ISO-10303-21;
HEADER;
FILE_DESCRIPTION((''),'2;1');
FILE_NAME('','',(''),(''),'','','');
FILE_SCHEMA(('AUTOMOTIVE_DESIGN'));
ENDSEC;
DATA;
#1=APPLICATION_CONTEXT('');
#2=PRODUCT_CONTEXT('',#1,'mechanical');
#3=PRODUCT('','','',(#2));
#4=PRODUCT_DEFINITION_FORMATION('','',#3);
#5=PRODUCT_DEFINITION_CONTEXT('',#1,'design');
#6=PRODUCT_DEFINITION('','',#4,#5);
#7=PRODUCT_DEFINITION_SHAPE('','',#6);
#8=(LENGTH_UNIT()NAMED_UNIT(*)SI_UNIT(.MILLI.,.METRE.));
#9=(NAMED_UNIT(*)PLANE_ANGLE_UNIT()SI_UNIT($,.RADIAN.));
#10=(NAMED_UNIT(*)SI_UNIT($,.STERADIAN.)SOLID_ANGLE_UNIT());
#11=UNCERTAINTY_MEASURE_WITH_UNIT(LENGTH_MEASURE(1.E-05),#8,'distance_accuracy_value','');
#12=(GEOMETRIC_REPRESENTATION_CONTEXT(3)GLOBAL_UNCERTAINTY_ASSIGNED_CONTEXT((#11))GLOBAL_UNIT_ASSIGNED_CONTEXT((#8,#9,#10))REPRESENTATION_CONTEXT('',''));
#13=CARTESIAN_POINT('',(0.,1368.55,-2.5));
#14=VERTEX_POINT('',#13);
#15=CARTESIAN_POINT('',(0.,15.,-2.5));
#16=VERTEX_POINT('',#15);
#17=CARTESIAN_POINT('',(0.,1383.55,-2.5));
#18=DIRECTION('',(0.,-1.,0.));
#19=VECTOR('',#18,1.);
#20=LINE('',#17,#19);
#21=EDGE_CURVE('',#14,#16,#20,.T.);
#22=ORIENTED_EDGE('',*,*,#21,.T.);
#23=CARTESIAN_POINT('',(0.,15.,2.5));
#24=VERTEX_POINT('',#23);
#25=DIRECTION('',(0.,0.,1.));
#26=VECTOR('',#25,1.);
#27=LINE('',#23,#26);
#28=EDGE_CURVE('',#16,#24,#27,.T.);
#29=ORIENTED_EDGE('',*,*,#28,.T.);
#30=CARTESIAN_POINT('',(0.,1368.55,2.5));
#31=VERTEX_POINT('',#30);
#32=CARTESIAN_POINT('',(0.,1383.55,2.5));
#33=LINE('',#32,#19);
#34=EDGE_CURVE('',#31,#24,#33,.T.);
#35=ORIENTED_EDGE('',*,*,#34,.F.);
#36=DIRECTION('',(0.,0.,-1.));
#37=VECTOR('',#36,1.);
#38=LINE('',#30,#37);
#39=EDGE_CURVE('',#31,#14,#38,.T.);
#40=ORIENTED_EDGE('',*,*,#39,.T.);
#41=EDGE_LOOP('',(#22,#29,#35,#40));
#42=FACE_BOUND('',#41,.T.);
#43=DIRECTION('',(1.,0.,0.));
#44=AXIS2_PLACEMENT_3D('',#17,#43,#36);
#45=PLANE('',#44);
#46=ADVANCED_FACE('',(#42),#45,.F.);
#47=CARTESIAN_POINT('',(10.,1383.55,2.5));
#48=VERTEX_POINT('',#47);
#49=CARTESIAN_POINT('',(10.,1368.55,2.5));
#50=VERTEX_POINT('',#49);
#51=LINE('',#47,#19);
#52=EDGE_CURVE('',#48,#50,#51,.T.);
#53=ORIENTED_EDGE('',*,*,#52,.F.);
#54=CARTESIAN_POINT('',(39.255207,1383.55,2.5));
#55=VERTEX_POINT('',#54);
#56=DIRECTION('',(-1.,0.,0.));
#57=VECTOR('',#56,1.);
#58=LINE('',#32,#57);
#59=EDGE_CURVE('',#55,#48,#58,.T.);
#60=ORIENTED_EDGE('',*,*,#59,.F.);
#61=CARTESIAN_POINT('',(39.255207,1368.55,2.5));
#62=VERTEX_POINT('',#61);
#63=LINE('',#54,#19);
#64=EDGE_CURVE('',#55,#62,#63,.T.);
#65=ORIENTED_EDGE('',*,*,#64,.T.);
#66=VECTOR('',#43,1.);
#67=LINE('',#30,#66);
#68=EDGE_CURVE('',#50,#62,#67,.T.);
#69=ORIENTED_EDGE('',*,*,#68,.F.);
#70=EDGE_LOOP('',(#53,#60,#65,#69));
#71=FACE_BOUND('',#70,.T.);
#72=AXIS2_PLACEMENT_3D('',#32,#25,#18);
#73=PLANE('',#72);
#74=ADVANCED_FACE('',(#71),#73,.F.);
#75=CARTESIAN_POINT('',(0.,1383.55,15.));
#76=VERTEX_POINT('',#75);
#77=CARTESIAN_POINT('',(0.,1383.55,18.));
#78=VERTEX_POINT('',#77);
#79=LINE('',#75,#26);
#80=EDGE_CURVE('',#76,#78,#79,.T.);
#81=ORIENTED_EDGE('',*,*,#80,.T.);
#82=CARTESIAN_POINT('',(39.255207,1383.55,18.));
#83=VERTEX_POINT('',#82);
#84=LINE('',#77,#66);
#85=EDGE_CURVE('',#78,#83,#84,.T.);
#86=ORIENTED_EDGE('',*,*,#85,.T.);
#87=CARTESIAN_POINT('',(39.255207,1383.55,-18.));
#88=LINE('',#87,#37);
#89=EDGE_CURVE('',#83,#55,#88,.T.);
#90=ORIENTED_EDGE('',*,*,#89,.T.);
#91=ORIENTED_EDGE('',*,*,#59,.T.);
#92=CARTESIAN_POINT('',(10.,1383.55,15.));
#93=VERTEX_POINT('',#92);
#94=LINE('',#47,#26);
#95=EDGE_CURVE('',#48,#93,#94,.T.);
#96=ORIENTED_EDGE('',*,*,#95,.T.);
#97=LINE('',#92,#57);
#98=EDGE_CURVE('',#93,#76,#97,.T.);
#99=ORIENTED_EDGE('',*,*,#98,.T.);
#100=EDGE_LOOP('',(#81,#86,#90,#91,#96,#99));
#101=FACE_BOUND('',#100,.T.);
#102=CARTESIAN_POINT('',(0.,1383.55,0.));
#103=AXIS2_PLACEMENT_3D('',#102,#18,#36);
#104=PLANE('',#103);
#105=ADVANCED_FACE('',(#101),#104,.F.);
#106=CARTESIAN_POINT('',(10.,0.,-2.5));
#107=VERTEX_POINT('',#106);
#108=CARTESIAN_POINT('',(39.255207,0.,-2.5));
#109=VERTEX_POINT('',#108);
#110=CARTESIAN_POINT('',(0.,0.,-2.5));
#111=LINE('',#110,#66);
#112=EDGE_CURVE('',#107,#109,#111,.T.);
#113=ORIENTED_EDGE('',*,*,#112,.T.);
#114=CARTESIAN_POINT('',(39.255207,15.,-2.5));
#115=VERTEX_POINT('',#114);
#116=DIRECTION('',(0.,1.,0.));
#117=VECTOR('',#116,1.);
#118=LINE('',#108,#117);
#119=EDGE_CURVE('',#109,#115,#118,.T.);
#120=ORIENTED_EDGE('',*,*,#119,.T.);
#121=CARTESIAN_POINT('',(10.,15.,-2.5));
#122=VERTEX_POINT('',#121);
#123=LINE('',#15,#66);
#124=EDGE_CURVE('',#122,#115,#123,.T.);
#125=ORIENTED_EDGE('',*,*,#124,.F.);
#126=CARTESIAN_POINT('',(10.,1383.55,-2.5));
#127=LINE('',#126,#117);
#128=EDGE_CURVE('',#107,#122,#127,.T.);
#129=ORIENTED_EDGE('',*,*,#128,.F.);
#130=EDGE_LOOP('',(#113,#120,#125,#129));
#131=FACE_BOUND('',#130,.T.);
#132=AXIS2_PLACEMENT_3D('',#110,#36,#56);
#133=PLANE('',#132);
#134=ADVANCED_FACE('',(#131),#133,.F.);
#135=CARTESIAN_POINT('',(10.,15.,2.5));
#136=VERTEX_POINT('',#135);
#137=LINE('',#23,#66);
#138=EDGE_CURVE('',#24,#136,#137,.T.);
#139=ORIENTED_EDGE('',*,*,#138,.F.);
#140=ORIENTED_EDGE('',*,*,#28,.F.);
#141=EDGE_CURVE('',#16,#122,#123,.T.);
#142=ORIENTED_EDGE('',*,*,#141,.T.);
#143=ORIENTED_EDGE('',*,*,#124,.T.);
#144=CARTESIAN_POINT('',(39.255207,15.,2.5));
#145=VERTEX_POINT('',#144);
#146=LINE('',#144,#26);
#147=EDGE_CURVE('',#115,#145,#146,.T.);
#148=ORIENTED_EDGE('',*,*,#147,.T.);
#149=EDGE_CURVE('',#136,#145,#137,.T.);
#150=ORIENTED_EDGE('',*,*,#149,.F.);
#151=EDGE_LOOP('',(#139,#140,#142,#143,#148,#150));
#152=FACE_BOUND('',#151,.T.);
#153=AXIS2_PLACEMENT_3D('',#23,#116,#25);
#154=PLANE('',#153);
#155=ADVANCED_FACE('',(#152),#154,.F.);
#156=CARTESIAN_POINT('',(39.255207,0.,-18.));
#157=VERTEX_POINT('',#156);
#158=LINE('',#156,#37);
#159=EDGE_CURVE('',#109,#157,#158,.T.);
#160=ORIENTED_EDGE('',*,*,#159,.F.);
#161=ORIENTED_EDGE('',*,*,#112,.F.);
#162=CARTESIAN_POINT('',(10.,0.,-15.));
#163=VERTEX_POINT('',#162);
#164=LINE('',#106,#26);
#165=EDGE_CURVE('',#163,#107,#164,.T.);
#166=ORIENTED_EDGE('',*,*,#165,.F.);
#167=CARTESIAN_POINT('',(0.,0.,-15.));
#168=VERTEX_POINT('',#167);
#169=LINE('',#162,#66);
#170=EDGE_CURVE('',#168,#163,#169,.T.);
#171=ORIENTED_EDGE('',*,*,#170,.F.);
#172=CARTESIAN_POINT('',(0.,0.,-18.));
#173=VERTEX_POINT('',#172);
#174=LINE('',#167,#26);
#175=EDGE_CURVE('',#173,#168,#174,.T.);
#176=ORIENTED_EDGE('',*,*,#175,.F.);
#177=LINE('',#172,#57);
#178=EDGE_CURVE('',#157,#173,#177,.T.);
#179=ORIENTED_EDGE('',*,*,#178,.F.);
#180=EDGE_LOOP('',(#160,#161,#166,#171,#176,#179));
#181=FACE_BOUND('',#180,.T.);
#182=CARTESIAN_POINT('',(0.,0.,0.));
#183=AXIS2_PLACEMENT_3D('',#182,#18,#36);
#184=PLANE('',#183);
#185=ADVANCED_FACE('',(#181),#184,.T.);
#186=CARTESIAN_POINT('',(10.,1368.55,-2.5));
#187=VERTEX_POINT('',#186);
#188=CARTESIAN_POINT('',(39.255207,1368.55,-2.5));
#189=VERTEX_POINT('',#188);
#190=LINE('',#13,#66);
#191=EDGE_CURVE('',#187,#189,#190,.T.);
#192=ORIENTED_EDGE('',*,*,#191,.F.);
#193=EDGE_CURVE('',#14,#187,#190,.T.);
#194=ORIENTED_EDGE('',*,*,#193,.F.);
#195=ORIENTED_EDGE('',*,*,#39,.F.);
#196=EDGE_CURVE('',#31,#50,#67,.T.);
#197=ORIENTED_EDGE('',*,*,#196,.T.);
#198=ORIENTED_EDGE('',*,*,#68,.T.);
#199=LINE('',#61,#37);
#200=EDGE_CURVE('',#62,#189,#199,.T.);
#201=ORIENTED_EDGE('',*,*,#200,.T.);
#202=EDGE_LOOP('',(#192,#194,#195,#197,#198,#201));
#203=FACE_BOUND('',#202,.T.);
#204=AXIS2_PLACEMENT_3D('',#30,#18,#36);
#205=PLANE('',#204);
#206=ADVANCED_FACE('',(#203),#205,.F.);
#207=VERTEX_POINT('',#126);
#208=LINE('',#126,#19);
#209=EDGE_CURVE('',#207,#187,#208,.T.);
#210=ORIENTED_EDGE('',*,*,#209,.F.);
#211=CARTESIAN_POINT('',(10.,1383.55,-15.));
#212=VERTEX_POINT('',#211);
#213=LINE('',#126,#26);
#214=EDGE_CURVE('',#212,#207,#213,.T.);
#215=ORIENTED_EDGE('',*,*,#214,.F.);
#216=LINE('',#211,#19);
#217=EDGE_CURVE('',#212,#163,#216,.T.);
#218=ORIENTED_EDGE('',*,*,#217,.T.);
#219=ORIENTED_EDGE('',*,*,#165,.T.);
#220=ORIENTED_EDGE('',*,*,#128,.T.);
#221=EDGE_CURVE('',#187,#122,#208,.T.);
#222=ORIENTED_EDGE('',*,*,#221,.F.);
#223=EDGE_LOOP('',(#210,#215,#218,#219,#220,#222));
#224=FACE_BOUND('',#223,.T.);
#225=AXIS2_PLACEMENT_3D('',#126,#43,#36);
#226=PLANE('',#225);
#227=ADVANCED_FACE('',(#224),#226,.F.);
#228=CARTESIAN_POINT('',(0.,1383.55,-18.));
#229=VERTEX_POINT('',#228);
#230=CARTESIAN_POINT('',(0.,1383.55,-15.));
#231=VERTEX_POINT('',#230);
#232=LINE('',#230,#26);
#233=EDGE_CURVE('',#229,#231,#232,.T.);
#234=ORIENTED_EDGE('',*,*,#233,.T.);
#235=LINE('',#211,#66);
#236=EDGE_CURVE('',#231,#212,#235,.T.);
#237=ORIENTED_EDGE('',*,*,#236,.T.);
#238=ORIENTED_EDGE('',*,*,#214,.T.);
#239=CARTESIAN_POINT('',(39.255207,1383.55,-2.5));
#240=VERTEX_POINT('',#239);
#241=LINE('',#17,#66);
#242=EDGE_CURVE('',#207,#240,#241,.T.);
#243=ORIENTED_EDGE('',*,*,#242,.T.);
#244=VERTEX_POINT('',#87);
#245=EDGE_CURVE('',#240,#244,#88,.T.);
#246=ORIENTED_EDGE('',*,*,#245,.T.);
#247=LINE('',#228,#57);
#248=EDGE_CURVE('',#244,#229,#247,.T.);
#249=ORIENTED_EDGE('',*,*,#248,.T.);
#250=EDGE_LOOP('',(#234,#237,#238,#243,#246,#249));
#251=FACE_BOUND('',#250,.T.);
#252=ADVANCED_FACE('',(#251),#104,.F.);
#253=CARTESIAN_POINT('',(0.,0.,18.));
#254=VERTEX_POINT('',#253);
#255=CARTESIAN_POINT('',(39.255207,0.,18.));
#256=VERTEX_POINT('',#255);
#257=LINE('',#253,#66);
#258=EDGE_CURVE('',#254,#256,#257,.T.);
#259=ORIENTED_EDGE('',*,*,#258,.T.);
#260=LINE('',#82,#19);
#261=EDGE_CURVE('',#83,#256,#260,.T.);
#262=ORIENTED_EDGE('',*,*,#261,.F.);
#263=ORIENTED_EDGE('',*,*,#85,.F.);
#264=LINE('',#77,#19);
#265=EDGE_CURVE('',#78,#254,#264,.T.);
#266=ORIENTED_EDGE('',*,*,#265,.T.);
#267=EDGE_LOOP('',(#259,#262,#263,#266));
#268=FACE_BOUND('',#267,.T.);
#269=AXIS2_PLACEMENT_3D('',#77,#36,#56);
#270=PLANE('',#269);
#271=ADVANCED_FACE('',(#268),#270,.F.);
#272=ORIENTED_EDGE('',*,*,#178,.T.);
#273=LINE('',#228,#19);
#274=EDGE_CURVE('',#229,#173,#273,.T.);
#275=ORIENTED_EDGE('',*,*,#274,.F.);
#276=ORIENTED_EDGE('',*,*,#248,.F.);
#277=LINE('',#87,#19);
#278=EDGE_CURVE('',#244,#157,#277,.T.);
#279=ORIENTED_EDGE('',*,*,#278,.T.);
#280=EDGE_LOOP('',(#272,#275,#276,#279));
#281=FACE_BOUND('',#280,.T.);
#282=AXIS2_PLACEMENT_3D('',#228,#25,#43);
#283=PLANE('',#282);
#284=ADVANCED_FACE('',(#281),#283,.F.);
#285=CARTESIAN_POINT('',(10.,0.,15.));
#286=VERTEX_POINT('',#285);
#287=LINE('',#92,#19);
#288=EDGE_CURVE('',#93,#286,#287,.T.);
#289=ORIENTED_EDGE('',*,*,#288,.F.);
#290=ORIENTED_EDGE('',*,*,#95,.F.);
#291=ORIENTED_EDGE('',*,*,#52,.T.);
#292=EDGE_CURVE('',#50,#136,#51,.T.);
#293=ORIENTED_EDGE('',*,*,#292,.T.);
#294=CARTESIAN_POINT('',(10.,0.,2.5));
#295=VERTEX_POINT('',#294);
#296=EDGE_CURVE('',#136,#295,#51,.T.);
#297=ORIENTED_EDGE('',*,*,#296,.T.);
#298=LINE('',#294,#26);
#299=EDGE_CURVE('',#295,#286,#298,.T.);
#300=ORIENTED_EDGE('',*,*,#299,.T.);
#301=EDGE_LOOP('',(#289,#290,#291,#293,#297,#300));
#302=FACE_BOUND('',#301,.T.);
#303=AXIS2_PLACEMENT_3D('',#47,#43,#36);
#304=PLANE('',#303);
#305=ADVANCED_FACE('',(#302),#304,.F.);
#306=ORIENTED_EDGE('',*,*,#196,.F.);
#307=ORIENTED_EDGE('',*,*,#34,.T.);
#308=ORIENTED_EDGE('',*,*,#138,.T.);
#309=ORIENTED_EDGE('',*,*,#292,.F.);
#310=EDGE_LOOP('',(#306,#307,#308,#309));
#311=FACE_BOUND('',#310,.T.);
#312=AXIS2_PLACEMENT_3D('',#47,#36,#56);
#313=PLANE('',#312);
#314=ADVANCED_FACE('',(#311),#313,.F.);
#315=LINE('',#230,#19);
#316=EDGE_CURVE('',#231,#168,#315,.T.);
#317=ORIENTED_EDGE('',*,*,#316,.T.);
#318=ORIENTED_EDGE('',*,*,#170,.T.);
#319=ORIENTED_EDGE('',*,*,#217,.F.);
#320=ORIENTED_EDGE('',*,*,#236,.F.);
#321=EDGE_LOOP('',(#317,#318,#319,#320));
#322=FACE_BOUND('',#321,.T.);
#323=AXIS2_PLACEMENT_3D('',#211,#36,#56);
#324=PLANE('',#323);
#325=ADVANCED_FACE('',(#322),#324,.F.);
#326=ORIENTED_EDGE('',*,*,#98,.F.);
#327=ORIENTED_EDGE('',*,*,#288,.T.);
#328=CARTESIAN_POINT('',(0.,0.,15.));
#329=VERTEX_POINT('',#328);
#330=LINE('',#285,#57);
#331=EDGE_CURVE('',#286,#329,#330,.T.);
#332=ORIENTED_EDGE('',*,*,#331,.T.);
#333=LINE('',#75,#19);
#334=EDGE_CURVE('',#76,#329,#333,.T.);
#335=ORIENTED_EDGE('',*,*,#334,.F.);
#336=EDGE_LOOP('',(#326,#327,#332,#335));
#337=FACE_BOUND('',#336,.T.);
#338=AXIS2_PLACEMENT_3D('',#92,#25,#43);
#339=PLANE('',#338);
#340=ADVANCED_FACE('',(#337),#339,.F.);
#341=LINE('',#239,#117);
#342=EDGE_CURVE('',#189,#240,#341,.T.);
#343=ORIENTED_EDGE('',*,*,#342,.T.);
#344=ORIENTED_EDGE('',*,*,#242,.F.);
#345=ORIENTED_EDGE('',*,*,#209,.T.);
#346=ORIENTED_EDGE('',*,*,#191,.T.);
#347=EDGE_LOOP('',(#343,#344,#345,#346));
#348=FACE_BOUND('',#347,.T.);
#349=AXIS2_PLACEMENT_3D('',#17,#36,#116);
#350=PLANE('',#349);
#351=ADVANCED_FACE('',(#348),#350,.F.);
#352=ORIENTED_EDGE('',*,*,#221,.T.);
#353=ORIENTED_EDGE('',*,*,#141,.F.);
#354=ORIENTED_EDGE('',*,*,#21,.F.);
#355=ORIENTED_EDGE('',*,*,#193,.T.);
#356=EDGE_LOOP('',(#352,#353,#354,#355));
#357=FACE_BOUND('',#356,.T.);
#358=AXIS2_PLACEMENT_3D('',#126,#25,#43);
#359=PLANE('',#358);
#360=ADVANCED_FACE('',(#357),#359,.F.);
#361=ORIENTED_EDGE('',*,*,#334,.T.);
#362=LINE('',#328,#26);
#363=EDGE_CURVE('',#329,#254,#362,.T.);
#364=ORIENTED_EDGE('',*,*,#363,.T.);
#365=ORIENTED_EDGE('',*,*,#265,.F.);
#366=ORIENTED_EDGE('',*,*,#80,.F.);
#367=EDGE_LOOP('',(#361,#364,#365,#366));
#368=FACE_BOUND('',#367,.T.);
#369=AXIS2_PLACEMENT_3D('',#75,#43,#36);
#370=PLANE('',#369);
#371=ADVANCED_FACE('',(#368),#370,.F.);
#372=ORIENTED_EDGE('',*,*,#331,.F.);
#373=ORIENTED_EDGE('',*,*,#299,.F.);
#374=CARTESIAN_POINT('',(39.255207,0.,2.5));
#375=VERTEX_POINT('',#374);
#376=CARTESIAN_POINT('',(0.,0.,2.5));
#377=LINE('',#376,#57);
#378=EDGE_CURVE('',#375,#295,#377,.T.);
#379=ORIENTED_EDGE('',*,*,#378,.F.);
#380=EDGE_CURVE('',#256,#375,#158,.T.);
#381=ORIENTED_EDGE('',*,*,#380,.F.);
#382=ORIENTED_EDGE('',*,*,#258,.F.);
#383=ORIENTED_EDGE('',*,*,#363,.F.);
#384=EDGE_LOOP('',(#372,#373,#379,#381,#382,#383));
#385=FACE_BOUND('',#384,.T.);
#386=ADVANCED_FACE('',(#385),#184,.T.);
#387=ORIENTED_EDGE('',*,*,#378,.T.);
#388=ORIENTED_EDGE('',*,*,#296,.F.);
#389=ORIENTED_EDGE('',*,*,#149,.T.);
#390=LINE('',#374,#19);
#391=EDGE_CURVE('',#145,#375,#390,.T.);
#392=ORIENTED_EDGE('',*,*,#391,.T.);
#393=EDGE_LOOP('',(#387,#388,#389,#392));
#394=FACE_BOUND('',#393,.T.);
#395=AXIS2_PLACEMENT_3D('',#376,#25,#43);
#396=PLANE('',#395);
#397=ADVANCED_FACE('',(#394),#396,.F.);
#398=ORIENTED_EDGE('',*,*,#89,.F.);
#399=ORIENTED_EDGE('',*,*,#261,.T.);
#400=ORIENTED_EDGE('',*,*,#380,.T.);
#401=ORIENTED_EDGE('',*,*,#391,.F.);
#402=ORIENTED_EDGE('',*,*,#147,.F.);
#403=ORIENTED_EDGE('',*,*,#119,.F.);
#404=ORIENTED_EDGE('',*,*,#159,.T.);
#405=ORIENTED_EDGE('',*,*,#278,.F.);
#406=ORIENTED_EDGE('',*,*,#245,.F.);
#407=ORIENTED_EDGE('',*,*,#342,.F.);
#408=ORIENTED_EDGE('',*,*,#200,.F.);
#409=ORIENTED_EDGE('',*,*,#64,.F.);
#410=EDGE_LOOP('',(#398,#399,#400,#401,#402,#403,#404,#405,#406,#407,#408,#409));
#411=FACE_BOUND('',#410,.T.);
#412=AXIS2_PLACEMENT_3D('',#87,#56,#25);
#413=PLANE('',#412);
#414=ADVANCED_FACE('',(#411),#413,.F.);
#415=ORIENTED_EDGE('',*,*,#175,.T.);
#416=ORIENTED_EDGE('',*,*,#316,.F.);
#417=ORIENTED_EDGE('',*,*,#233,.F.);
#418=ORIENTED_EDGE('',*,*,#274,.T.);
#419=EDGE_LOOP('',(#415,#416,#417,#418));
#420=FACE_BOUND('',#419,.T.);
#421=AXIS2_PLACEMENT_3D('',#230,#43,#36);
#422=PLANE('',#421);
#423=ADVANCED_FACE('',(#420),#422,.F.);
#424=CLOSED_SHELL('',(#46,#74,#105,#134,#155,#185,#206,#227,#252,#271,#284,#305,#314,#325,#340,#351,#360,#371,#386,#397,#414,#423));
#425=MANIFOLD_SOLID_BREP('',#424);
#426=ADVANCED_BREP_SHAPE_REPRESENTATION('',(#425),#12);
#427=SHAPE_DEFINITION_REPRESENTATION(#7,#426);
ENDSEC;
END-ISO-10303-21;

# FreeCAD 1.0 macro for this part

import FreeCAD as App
import Part
import Sketcher

V = App.Vector
Q = App.Units.Quantity


def add_polygon(sketch, points):
    """Adds a closed chain of lines whose ends are joined by coincident constraints."""
    first, n = sketch.GeometryCount, len(points)
    for a, b in zip(points, points[1:] + points[:1]):
        sketch.addGeometry(Part.LineSegment(App.Vector(*a, 0), App.Vector(*b, 0)), False)
    for i in range(n):
        sketch.addConstraint(Sketcher.Constraint("Coincident", first + i, 2, first + (i + 1) % n, 1))

doc = App.newDocument("Part")
body = doc.addObject("PartDesign::Body", "Body")

sketch1 = body.newObject("Sketcher::SketchObject", "Sketch")
sketch1.AttachmentSupport = (doc.getObject("XZ_Plane"), [""])
sketch1.MapMode = "FlatFace"
add_polygon(sketch1, [(10, -15), (10, -2.5), (0, -2.5), (0, 2.5), (10, 2.5), (10, 15), (0, 15), (0, 18), (39.3, 18), (39.3, -18), (0, -18), (0, -15)])
sketch1.addConstraint(Sketcher.Constraint("Vertical", 0))
sketch1.addConstraint(Sketcher.Constraint("Horizontal", 1))
sketch1.addConstraint(Sketcher.Constraint("Vertical", 2))
sketch1.addConstraint(Sketcher.Constraint("Horizontal", 3))
sketch1.addConstraint(Sketcher.Constraint("Vertical", 4))
sketch1.addConstraint(Sketcher.Constraint("Horizontal", 5))
sketch1.addConstraint(Sketcher.Constraint("Vertical", 6))
sketch1.addConstraint(Sketcher.Constraint("Horizontal", 7))
sketch1.addConstraint(Sketcher.Constraint("Vertical", 8))
sketch1.addConstraint(Sketcher.Constraint("Horizontal", 9))
sketch1.addConstraint(Sketcher.Constraint("Vertical", 10))
sketch1.addConstraint(Sketcher.Constraint("Horizontal", 11))
sketch1.addConstraint(Sketcher.Constraint("Symmetric", 1, 2, 2, 2, -1, 1))
sketch1.addConstraint(Sketcher.Constraint("Symmetric", 6, 2, 9, 2, -1, 1))
sketch1.addConstraint(Sketcher.Constraint("Symmetric", 5, 2, 10, 2, -1))
sketch1.addConstraint(Sketcher.Constraint("Vertical", 0, 2, 3, 2))
sketch1.addConstraint(Sketcher.Constraint("DistanceX", 1, 2, 1, 1, Q("10 mm")))
sketch1.addConstraint(Sketcher.Constraint("DistanceY", 2, 1, 2, 2, Q("5 mm")))
sketch1.addConstraint(Sketcher.Constraint("DistanceY", 6, 1, 6, 2, Q("3 mm")))
sketch1.addConstraint(Sketcher.Constraint("DistanceY", 8, 2, 8, 1, Q("36 mm")))
sketch1.addConstraint(Sketcher.Constraint("DistanceX", 7, 1, 7, 2, Q("39.255207 mm")))
pad1 = body.newObject("PartDesign::Pad", "Pad")
pad1.Profile = sketch1
pad1.Length = 1383.55
pad1.Reversed = True

sketch2 = body.newObject("Sketcher::SketchObject", "Sketch001")
sketch2.AttachmentSupport = (doc.getObject("YZ_Plane"), [""])
sketch2.MapMode = "FlatFace"
sketch2.AttachmentOffset = App.Placement(V(0, 0, 39.255207), App.Rotation())
add_polygon(sketch2, [(15, 2), (0, 2), (0, -2), (15, -2)])
add_polygon(sketch2, [(1384, 2), (1369, 2), (1369, -2), (1384, -2)])
sketch2.addConstraint(Sketcher.Constraint("Horizontal", 0))
sketch2.addConstraint(Sketcher.Constraint("Vertical", 1))
sketch2.addConstraint(Sketcher.Constraint("Horizontal", 2))
sketch2.addConstraint(Sketcher.Constraint("Vertical", 3))
sketch2.addConstraint(Sketcher.Constraint("Horizontal", 4))
sketch2.addConstraint(Sketcher.Constraint("Vertical", 5))
sketch2.addConstraint(Sketcher.Constraint("Horizontal", 6))
sketch2.addConstraint(Sketcher.Constraint("Vertical", 7))
sketch2.addConstraint(Sketcher.Constraint("Symmetric", 0, 2, 1, 2, -1, 1))
sketch2.addConstraint(Sketcher.Constraint("Horizontal", 3, 2, 4, 2))
sketch2.addConstraint(Sketcher.Constraint("Horizontal", 2, 2, 5, 2))
sketch2.addConstraint(Sketcher.Constraint("Equal", 2, 4))
sketch2.addConstraint(Sketcher.Constraint("DistanceX", 0, 2, 0, 1, Q("15 mm")))
sketch2.addConstraint(Sketcher.Constraint("DistanceY", 1, 2, 1, 1, Q("5 mm")))
sketch2.addConstraint(Sketcher.Constraint("DistanceX", -1, 1, 4, 2, Q("1368.55 mm")))
pocket1 = body.newObject("PartDesign::Pocket", "Pocket")
pocket1.Profile = sketch2
pocket1.Type = "ThroughAll"

doc.recompute()
